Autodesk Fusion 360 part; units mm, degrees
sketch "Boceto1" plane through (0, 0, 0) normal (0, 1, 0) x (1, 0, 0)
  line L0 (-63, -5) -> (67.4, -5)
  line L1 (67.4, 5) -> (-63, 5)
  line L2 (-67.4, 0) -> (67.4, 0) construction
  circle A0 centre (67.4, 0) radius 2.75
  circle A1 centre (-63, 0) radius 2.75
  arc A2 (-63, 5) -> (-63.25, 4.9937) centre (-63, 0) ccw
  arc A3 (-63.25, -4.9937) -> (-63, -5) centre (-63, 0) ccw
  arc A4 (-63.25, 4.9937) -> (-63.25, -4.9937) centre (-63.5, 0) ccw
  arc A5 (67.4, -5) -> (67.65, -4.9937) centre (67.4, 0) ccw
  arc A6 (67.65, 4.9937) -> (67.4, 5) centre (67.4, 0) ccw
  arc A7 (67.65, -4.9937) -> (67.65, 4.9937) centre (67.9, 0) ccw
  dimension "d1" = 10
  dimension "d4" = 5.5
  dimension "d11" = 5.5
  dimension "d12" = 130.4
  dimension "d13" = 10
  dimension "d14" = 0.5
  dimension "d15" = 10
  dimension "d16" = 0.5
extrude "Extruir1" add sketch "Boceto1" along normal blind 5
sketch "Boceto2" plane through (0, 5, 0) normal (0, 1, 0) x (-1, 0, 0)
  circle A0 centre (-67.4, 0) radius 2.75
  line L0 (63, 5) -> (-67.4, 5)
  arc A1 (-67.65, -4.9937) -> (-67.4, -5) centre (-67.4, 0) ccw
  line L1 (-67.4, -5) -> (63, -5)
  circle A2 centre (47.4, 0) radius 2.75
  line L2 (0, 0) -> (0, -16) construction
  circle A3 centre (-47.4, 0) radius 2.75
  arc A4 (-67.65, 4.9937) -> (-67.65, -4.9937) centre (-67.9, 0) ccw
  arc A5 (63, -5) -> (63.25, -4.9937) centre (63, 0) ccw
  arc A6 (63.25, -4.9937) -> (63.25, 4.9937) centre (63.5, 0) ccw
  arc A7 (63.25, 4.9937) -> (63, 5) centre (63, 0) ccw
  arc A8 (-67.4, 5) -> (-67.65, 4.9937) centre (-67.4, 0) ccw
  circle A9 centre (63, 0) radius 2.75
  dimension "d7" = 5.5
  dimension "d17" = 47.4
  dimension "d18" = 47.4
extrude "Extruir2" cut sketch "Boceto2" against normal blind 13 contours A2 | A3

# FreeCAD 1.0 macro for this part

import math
import FreeCAD as App
import Part
import Sketcher
from FreeCAD import Vector

doc = App.newDocument("Part")
params = doc.addObject("Spreadsheet::Sheet", "Params")
for row, (alias, value) in enumerate([
    ("sketch1_radius", "5 mm"),
    ("sketch1_diameter", "5.5 mm"),
    ("sketch1_width", "130.4 mm"),
    ("pad1_length", "5 mm"),
    ("sketch2_diameter", "5.5 mm"),
    ("pocket1_length", "13 mm"),
], start=1):
    params.set(f"A{row}", alias)
    params.set(f"B{row}", "=" + value)
    params.setAlias(f"B{row}", alias)

body = doc.addObject("PartDesign::Body", "Body")

sketch1 = body.newObject("Sketcher::SketchObject", "Sketch")
sketch1.AttachmentSupport = (doc.getObject("XZ_Plane"), [""])
sketch1.MapMode = "FlatFace"
sketch1.addGeometry(Part.ArcOfCircle(Part.Circle(Vector(-62.997198, -0.074643, 0), Vector(0, 0, 1), 5.074644), math.radians(90.031632), math.radians(92.855464)), False)
sketch1.addGeometry(Part.LineSegment(Vector(-63, 5, 0), Vector(67.4, 5, 0)), False)
sketch1.addGeometry(Part.ArcOfCircle(Part.Circle(Vector(67.400907, 0.072524, 0), Vector(0, 0, 1), 4.927476), math.radians(87.102358), math.radians(90.010546)), False)
sketch1.addGeometry(Part.ArcOfCircle(Part.Circle(Vector(67.9, 0, 0), Vector(0, 0, 1), 4.999954), math.radians(-92.86601), math.radians(92.86601)), False)
sketch1.addGeometry(Part.ArcOfCircle(Part.Circle(Vector(67.397198, 0.074643, 0), Vector(0, 0, 1), 5.074644), math.radians(-89.968368), math.radians(-87.144536)), False)
sketch1.addGeometry(Part.LineSegment(Vector(67.4, -5, 0), Vector(-63, -5, 0)), False)
sketch1.addGeometry(Part.ArcOfCircle(Part.Circle(Vector(-63.000907, -0.072524, 0), Vector(0, 0, 1), 4.927476), math.radians(-92.897642), math.radians(-89.989454)), False)
sketch1.addGeometry(Part.ArcOfCircle(Part.Circle(Vector(-63.5, 0, 0), Vector(0, 0, 1), 4.999954), math.radians(87.13399), math.radians(272.86601)), False)
sketch1.addGeometry(Part.Circle(Vector(-63, 0, 0), Vector(0, 0, 1), 2.75), False)
sketch1.addGeometry(Part.Circle(Vector(67.4, 0, 0), Vector(0, 0, 1), 2.75), False)
sketch1.addConstraint(Sketcher.Constraint("Coincident", 0, 1, 1, 1))
sketch1.addConstraint(Sketcher.Constraint("Tangent", 1, 2, 2, 2))
sketch1.addConstraint(Sketcher.Constraint("Coincident", 2, 1, 3, 2))
sketch1.addConstraint(Sketcher.Constraint("Coincident", 3, 1, 4, 2))
sketch1.addConstraint(Sketcher.Constraint("Coincident", 4, 1, 5, 1))
sketch1.addConstraint(Sketcher.Constraint("Tangent", 5, 2, 6, 2))
sketch1.addConstraint(Sketcher.Constraint("Coincident", 6, 1, 7, 2))
sketch1.addConstraint(Sketcher.Constraint("Coincident", 7, 1, 0, 2))
sketch1.addConstraint(Sketcher.Constraint("Horizontal", 1))
sketch1.addConstraint(Sketcher.Constraint("Horizontal", 5))
sketch1.addConstraint(Sketcher.Constraint("Equal", 0, 4))
sketch1.addConstraint(Sketcher.Constraint("Equal", 2, 6))
sketch1.addConstraint(Sketcher.Constraint("Equal", 3, 7))
sketch1.addConstraint(Sketcher.Constraint("Equal", 8, 9))
sketch1.addConstraint(Sketcher.Constraint("Symmetric", 2, 1, 3, 1, -1))
sketch1.addConstraint(Sketcher.Constraint("Symmetric", 1, 2, 4, 1, -1))
sketch1.addConstraint(Sketcher.Constraint("Symmetric", 6, 1, 7, 1, -1))
sketch1.addConstraint(Sketcher.Constraint("PointOnObject", 8, 3, -1))
sketch1.addConstraint(Sketcher.Constraint("PointOnObject", 9, 3, -1))
sketch1.addConstraint(Sketcher.Constraint("Horizontal", 3, 1, 6, 1))
sketch1.addConstraint(Sketcher.Constraint("Vertical", 8, 3, 0, 1))
sketch1.addConstraint(Sketcher.Constraint("Vertical", 9, 3, 1, 2))
sketch1.addConstraint(Sketcher.Constraint("Vertical", 0, 1, 5, 2))
sketch1.addConstraint(Sketcher.Constraint("Radius", 3, 5.0))
sketch1.addConstraint(Sketcher.Constraint("Diameter", 8, 5.5))
sketch1.addConstraint(Sketcher.Constraint("DistanceX", 1, 1, 1, 2, 130.4))
sketch1.addConstraint(Sketcher.Constraint("DistanceY", 5, 2, 0, 1, 10.0))
sketch1.addConstraint(Sketcher.Constraint("DistanceX", 7, 3, 8, 3, 0.5))
sketch1.addConstraint(Sketcher.Constraint("DistanceX", 8, 3, -1, 1, 63.0))
sketch1.addConstraint(Sketcher.Constraint("Radius", 0, 5.0746))
sketch1.addConstraint(Sketcher.Constraint("Radius", 2, 4.9275))
sketch1.setExpression("Constraints[23]", "Params.sketch1_radius")
sketch1.setExpression("Constraints[24]", "Params.sketch1_diameter")
sketch1.setExpression("Constraints[25]", "Params.sketch1_width")
pad1 = body.newObject("PartDesign::Pad", "Pad")
pad1.Profile = sketch1
pad1.setExpression("Length", "Params.pad1_length")
pad1.Reversed = True

sketch2 = body.newObject("Sketcher::SketchObject", "Sketch001")
sketch2.AttachmentSupport = (doc.getObject("XZ_Plane"), [""])
sketch2.MapMode = "FlatFace"
sketch2.AttachmentOffset = App.Placement(Vector(0, 0, -5), App.Rotation())
sketch2.addGeometry(Part.Circle(Vector(-47.4, 0, 0), Vector(0, 0, 1), 2.75), False)
sketch2.addGeometry(Part.Circle(Vector(47.4, 0, 0), Vector(0, 0, 1), 2.75), False)
sketch2.addConstraint(Sketcher.Constraint("Equal", 0, 1))
sketch2.addConstraint(Sketcher.Constraint("Symmetric", 0, 3, 1, 3, -1, 1))
sketch2.addConstraint(Sketcher.Constraint("PointOnObject", 0, 3, -1))
sketch2.addConstraint(Sketcher.Constraint("Diameter", 0, 5.5))
sketch2.addConstraint(Sketcher.Constraint("DistanceX", 0, 3, -1, 1, 47.4))
sketch2.setExpression("Constraints[3]", "Params.sketch2_diameter")
pocket1 = body.newObject("PartDesign::Pocket", "Pocket")
pocket1.Profile = sketch2
pocket1.setExpression("Length", "Params.pocket1_length")
pocket1.Reversed = True

doc.recompute()
